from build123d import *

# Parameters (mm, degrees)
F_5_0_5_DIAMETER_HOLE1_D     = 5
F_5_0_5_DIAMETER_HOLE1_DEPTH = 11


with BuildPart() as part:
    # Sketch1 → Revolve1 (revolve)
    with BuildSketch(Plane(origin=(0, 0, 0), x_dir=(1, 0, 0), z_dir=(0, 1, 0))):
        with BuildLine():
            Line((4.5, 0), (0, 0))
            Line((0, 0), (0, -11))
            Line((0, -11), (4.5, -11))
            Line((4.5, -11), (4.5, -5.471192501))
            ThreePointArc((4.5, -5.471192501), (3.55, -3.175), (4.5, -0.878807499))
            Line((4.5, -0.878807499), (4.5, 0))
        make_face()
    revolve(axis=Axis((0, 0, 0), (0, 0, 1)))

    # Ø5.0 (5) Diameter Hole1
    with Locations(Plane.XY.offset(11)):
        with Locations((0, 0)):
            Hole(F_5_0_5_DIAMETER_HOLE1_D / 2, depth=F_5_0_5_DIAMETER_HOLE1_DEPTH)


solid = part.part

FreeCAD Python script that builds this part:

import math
import FreeCAD as App
import Part
import Sketcher
from FreeCAD import Vector
Q = App.Units.Quantity

doc = App.newDocument("Part")
body = doc.addObject("PartDesign::Body", "Body")

# Sketch on XZ plane
sketch1 = doc.addObject("Sketcher::SketchObject", "Sketch")
body.addObject(sketch1)
sketch1.AttachmentSupport = (doc.XZ_Plane, [""])
sketch1.MapMode = "FlatFace"
sketch1.addGeometry(Part.LineSegment(Vector(4.5, 0, 0), Vector(0, 0, 0)), False)
sketch1.addGeometry(Part.LineSegment(Vector(0, 0, 0), Vector(0, 11, 0)), False)
sketch1.addGeometry(Part.LineSegment(Vector(0, 11, 0), Vector(4.5, 11, 0)), False)
sketch1.addGeometry(Part.LineSegment(Vector(4.5, 11, 0), Vector(4.5, 5.5, 0)), False)
sketch1.addGeometry(Part.ArcOfCircle(Part.Circle(Vector(6.8, 3.2, 0), Vector(0, 0, 1), 3.3), math.radians(135), math.radians(225)), False)
sketch1.addGeometry(Part.LineSegment(Vector(4.5, 0.9, 0), Vector(4.5, 0, 0)), False)
sketch1.addConstraint(Sketcher.Constraint("Coincident", 0, 2, 1, 1))
sketch1.addConstraint(Sketcher.Constraint("Coincident", 1, 2, 2, 1))
sketch1.addConstraint(Sketcher.Constraint("Coincident", 2, 2, 3, 1))
sketch1.addConstraint(Sketcher.Constraint("Coincident", 3, 2, 4, 1))
sketch1.addConstraint(Sketcher.Constraint("Coincident", 4, 2, 5, 1))
sketch1.addConstraint(Sketcher.Constraint("Coincident", 5, 2, 0, 1))
sketch1.addConstraint(Sketcher.Constraint("Horizontal", 0))
sketch1.addConstraint(Sketcher.Constraint("Vertical", 1))
sketch1.addConstraint(Sketcher.Constraint("Horizontal", 2))
sketch1.addConstraint(Sketcher.Constraint("Vertical", 3))
sketch1.addConstraint(Sketcher.Constraint("Vertical", 5))
sketch1.addConstraint(Sketcher.Constraint("Coincident", 0, 2, -1, 1))
sketch1.addConstraint(Sketcher.Constraint("Vertical", 3, 2, 4, 2))
sketch1.addConstraint(Sketcher.Constraint("DistanceY", 1, 1, 1, 2, Q("11 mm")))
sketch1.addConstraint(Sketcher.Constraint("Radius", 4, Q("3.25 mm")))
sketch1.addConstraint(Sketcher.Constraint("DistanceX", 0, 2, 0, 1, Q("4.5 mm")))
sketch1.addConstraint(Sketcher.Constraint("DistanceX", -1, 1, 4, 3, Q("6.8 mm")))
sketch1.addConstraint(Sketcher.Constraint("DistanceY", -1, 1, 4, 3, Q("3.175 mm")))
revolution = doc.addObject("PartDesign::Revolution", "Revolution")
body.addObject(revolution)
revolution.Profile = sketch1
revolution.ReferenceAxis = (sketch1, ["V_Axis"])
revolution.Angle = 360

# Sketch on XY plane
sketch2 = doc.addObject("Sketcher::SketchObject", "Sketch001")
body.addObject(sketch2)
sketch2.AttachmentSupport = (doc.XY_Plane, [""])
sketch2.MapMode = "FlatFace"
sketch2.AttachmentOffset = App.Placement(Vector(0, 0, 11), App.Rotation())
sketch2.addGeometry(Part.Circle(Vector(0, 0, 0), Vector(0, 0, 1), 2.5), False)
sketch2.addConstraint(Sketcher.Constraint("Coincident", 0, 3, -1, 1))
sketch2.addConstraint(Sketcher.Constraint("Diameter", 0, Q("5 mm")))
doc.recompute()
hole = doc.addObject("PartDesign::Hole", "Hole")
body.addObject(hole)
hole.Profile = sketch2
hole.ThreadType = "None"
hole.Diameter = 5
hole.DepthType = "Dimension"
hole.Depth = 11
hole.DrillPoint = "Flat"

doc.recompute()
